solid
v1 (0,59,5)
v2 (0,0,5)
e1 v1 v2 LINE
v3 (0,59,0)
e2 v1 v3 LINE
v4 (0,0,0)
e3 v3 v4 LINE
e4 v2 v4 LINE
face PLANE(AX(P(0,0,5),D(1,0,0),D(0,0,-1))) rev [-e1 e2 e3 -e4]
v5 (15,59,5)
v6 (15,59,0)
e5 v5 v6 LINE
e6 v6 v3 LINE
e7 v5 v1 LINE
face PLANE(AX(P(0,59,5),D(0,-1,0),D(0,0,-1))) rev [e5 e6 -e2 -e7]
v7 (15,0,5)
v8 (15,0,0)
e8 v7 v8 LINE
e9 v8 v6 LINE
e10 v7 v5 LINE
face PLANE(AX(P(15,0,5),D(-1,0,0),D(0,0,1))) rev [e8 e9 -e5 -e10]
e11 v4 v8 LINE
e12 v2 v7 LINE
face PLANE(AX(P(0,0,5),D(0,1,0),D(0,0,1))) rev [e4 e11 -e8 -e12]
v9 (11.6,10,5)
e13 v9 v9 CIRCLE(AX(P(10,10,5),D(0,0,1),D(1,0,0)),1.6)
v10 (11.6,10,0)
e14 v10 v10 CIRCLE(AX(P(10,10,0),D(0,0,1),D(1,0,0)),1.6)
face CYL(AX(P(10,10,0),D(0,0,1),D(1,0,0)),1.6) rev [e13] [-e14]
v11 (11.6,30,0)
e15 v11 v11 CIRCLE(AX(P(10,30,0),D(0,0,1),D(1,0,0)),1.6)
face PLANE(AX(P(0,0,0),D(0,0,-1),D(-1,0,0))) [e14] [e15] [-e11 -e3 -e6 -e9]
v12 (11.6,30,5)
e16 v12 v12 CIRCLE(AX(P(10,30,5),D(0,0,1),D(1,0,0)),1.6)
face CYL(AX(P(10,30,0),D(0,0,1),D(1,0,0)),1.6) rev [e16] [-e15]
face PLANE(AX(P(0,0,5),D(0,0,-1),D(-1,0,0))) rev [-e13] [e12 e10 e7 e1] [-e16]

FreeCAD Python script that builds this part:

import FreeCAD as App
import Part
import Sketcher
Q = App.Units.Quantity


def add_polygon(sketch, points):
    """Adds a closed chain of lines whose ends are joined by coincident constraints."""
    first, n = sketch.GeometryCount, len(points)
    for a, b in zip(points, points[1:] + points[:1]):
        sketch.addGeometry(Part.LineSegment(App.Vector(*a, 0), App.Vector(*b, 0)), False)
    for i in range(n):
        sketch.addConstraint(Sketcher.Constraint("Coincident", first + i, 2, first + (i + 1) % n, 1))

doc = App.newDocument("Part")
params = doc.addObject("Spreadsheet::Sheet", "Params")
for row, (alias, value) in enumerate([
    ("sketch1_width", "15 mm"),
    ("sketch1_height", "59 mm"),
    ("pad1_length", "5 mm"),
    ("sketch2_diameter", "3.2 mm"),
    ("pocket1_length", "5 mm"),
], start=1):
    params.set(f"A{row}", alias)
    params.set(f"B{row}", "=" + value)
    params.setAlias(f"B{row}", alias)

body = doc.addObject("PartDesign::Body", "Body")

sketch1 = body.newObject("Sketcher::SketchObject", "Sketch")
sketch1.AttachmentSupport = (doc.getObject("XY_Plane"), [""])
sketch1.MapMode = "FlatFace"
add_polygon(sketch1, [(0, 59), (0, 0), (15, 0), (15, 59)])
sketch1.addConstraint(Sketcher.Constraint("Vertical", 0))
sketch1.addConstraint(Sketcher.Constraint("Horizontal", 1))
sketch1.addConstraint(Sketcher.Constraint("Vertical", 2))
sketch1.addConstraint(Sketcher.Constraint("Horizontal", 3))
sketch1.addConstraint(Sketcher.Constraint("Coincident", 0, 2, -1, 1))
sketch1.addConstraint(Sketcher.Constraint("DistanceX", 1, 1, 1, 2, Q("15 mm")))
sketch1.addConstraint(Sketcher.Constraint("DistanceY", 0, 2, 0, 1, Q("59 mm")))
sketch1.setExpression("Constraints[9]", "Params.sketch1_width")
sketch1.setExpression("Constraints[10]", "Params.sketch1_height")
pad1 = body.newObject("PartDesign::Pad", "Pad")
pad1.Profile = sketch1
pad1.setExpression("Length", "Params.pad1_length")

sketch2 = body.newObject("Sketcher::SketchObject", "Sketch001")
sketch2.AttachmentSupport = (doc.getObject("XY_Plane"), [""])
sketch2.MapMode = "FlatFace"
sketch2.AttachmentOffset = App.Placement(App.Vector(0, 0, 5), App.Rotation())
sketch2.addGeometry(Part.Circle(App.Vector(10, 10, 0), App.Vector(0, 0, 1), 1.6), False)
sketch2.addGeometry(Part.Circle(App.Vector(10, 30, 0), App.Vector(0, 0, 1), 1.6), False)
sketch2.addConstraint(Sketcher.Constraint("Equal", 0, 1))
sketch2.addConstraint(Sketcher.Constraint("Vertical", 0, 3, 1, 3))
sketch2.addConstraint(Sketcher.Constraint("Diameter", 0, Q("3.2 mm")))
sketch2.addConstraint(Sketcher.Constraint("DistanceX", -1, 1, 0, 3, Q("10 mm")))
sketch2.addConstraint(Sketcher.Constraint("DistanceY", -1, 1, 0, 3, Q("10 mm")))
sketch2.addConstraint(Sketcher.Constraint("DistanceY", -1, 1, 1, 3, Q("30 mm")))
sketch2.setExpression("Constraints[2]", "Params.sketch2_diameter")
pocket1 = body.newObject("PartDesign::Pocket", "Pocket")
pocket1.Profile = sketch2
pocket1.setExpression("Length", "Params.pocket1_length")

doc.recompute()
